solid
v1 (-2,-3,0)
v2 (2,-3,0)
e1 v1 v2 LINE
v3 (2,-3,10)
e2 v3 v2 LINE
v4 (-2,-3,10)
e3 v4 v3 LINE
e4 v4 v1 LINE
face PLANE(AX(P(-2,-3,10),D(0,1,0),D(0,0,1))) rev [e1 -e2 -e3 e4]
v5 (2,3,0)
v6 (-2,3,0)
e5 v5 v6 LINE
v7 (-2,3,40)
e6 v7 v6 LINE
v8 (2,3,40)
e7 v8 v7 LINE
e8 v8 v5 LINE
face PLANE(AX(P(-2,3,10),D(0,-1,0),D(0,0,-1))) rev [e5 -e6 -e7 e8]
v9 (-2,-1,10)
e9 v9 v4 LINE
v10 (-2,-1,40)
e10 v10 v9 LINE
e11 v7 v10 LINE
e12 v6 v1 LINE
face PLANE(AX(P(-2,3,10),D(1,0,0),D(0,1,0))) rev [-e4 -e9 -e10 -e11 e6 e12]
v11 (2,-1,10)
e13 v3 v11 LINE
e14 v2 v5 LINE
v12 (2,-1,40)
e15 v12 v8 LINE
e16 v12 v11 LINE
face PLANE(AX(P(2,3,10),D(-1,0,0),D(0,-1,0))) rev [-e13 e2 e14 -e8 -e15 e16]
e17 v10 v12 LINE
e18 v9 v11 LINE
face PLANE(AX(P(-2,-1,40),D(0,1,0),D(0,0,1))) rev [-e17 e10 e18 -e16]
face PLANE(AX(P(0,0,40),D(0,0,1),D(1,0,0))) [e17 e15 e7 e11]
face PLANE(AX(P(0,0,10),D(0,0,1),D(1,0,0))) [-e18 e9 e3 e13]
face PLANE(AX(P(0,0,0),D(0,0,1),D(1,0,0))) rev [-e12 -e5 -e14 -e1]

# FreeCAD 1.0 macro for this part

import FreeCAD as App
import Part
import Sketcher
Q = App.Units.Quantity


def add_polygon(sketch, points):
    """Adds a closed chain of lines whose ends are joined by coincident constraints."""
    first, n = sketch.GeometryCount, len(points)
    for a, b in zip(points, points[1:] + points[:1]):
        sketch.addGeometry(Part.LineSegment(App.Vector(*a, 0), App.Vector(*b, 0)), False)
    for i in range(n):
        sketch.addConstraint(Sketcher.Constraint("Coincident", first + i, 2, first + (i + 1) % n, 1))

doc = App.newDocument("Part")
body = doc.addObject("PartDesign::Body", "Body")

sketch1 = body.newObject("Sketcher::SketchObject", "Sketch")
sketch1.AttachmentSupport = (doc.getObject("XY_Plane"), [""])
sketch1.MapMode = "FlatFace"
add_polygon(sketch1, [(-2, 3), (-2, -3), (2, -3), (2, 3)])
sketch1.addConstraint(Sketcher.Constraint("Vertical", 0))
sketch1.addConstraint(Sketcher.Constraint("Horizontal", 1))
sketch1.addConstraint(Sketcher.Constraint("Vertical", 2))
sketch1.addConstraint(Sketcher.Constraint("Horizontal", 3))
sketch1.addConstraint(Sketcher.Constraint("Symmetric", 0, 2, 2, 2, -1, 1))
sketch1.addConstraint(Sketcher.Constraint("DistanceX", 1, 1, 1, 2, Q("4 mm")))
sketch1.addConstraint(Sketcher.Constraint("DistanceY", 0, 2, 0, 1, Q("6 mm")))
pad1 = body.newObject("PartDesign::Pad", "Pad")
pad1.Profile = sketch1
pad1.Length = 10

sketch2 = body.newObject("Sketcher::SketchObject", "Sketch001")
sketch2.AttachmentSupport = (doc.getObject("XY_Plane"), [""])
sketch2.MapMode = "FlatFace"
sketch2.AttachmentOffset = App.Placement(App.Vector(0, 0, 10), App.Rotation())
add_polygon(sketch2, [(-2, 3), (-2, -1), (2, -1), (2, 3)])
sketch2.addConstraint(Sketcher.Constraint("Vertical", 0))
sketch2.addConstraint(Sketcher.Constraint("Horizontal", 1))
sketch2.addConstraint(Sketcher.Constraint("Vertical", 2))
sketch2.addConstraint(Sketcher.Constraint("Horizontal", 3))
sketch2.addConstraint(Sketcher.Constraint("Equal", 3, 0))
sketch2.addConstraint(Sketcher.Constraint("DistanceX", 1, 1, 1, 2, Q("4 mm")))
sketch2.addConstraint(Sketcher.Constraint("DistanceX", 0, 2, -1, 1, Q("2 mm")))
sketch2.addConstraint(Sketcher.Constraint("DistanceY", 0, 2, -1, 1, Q("1 mm")))
pad2 = body.newObject("PartDesign::Pad", "Pad001")
pad2.Profile = sketch2
pad2.Length = 30

doc.recompute()
